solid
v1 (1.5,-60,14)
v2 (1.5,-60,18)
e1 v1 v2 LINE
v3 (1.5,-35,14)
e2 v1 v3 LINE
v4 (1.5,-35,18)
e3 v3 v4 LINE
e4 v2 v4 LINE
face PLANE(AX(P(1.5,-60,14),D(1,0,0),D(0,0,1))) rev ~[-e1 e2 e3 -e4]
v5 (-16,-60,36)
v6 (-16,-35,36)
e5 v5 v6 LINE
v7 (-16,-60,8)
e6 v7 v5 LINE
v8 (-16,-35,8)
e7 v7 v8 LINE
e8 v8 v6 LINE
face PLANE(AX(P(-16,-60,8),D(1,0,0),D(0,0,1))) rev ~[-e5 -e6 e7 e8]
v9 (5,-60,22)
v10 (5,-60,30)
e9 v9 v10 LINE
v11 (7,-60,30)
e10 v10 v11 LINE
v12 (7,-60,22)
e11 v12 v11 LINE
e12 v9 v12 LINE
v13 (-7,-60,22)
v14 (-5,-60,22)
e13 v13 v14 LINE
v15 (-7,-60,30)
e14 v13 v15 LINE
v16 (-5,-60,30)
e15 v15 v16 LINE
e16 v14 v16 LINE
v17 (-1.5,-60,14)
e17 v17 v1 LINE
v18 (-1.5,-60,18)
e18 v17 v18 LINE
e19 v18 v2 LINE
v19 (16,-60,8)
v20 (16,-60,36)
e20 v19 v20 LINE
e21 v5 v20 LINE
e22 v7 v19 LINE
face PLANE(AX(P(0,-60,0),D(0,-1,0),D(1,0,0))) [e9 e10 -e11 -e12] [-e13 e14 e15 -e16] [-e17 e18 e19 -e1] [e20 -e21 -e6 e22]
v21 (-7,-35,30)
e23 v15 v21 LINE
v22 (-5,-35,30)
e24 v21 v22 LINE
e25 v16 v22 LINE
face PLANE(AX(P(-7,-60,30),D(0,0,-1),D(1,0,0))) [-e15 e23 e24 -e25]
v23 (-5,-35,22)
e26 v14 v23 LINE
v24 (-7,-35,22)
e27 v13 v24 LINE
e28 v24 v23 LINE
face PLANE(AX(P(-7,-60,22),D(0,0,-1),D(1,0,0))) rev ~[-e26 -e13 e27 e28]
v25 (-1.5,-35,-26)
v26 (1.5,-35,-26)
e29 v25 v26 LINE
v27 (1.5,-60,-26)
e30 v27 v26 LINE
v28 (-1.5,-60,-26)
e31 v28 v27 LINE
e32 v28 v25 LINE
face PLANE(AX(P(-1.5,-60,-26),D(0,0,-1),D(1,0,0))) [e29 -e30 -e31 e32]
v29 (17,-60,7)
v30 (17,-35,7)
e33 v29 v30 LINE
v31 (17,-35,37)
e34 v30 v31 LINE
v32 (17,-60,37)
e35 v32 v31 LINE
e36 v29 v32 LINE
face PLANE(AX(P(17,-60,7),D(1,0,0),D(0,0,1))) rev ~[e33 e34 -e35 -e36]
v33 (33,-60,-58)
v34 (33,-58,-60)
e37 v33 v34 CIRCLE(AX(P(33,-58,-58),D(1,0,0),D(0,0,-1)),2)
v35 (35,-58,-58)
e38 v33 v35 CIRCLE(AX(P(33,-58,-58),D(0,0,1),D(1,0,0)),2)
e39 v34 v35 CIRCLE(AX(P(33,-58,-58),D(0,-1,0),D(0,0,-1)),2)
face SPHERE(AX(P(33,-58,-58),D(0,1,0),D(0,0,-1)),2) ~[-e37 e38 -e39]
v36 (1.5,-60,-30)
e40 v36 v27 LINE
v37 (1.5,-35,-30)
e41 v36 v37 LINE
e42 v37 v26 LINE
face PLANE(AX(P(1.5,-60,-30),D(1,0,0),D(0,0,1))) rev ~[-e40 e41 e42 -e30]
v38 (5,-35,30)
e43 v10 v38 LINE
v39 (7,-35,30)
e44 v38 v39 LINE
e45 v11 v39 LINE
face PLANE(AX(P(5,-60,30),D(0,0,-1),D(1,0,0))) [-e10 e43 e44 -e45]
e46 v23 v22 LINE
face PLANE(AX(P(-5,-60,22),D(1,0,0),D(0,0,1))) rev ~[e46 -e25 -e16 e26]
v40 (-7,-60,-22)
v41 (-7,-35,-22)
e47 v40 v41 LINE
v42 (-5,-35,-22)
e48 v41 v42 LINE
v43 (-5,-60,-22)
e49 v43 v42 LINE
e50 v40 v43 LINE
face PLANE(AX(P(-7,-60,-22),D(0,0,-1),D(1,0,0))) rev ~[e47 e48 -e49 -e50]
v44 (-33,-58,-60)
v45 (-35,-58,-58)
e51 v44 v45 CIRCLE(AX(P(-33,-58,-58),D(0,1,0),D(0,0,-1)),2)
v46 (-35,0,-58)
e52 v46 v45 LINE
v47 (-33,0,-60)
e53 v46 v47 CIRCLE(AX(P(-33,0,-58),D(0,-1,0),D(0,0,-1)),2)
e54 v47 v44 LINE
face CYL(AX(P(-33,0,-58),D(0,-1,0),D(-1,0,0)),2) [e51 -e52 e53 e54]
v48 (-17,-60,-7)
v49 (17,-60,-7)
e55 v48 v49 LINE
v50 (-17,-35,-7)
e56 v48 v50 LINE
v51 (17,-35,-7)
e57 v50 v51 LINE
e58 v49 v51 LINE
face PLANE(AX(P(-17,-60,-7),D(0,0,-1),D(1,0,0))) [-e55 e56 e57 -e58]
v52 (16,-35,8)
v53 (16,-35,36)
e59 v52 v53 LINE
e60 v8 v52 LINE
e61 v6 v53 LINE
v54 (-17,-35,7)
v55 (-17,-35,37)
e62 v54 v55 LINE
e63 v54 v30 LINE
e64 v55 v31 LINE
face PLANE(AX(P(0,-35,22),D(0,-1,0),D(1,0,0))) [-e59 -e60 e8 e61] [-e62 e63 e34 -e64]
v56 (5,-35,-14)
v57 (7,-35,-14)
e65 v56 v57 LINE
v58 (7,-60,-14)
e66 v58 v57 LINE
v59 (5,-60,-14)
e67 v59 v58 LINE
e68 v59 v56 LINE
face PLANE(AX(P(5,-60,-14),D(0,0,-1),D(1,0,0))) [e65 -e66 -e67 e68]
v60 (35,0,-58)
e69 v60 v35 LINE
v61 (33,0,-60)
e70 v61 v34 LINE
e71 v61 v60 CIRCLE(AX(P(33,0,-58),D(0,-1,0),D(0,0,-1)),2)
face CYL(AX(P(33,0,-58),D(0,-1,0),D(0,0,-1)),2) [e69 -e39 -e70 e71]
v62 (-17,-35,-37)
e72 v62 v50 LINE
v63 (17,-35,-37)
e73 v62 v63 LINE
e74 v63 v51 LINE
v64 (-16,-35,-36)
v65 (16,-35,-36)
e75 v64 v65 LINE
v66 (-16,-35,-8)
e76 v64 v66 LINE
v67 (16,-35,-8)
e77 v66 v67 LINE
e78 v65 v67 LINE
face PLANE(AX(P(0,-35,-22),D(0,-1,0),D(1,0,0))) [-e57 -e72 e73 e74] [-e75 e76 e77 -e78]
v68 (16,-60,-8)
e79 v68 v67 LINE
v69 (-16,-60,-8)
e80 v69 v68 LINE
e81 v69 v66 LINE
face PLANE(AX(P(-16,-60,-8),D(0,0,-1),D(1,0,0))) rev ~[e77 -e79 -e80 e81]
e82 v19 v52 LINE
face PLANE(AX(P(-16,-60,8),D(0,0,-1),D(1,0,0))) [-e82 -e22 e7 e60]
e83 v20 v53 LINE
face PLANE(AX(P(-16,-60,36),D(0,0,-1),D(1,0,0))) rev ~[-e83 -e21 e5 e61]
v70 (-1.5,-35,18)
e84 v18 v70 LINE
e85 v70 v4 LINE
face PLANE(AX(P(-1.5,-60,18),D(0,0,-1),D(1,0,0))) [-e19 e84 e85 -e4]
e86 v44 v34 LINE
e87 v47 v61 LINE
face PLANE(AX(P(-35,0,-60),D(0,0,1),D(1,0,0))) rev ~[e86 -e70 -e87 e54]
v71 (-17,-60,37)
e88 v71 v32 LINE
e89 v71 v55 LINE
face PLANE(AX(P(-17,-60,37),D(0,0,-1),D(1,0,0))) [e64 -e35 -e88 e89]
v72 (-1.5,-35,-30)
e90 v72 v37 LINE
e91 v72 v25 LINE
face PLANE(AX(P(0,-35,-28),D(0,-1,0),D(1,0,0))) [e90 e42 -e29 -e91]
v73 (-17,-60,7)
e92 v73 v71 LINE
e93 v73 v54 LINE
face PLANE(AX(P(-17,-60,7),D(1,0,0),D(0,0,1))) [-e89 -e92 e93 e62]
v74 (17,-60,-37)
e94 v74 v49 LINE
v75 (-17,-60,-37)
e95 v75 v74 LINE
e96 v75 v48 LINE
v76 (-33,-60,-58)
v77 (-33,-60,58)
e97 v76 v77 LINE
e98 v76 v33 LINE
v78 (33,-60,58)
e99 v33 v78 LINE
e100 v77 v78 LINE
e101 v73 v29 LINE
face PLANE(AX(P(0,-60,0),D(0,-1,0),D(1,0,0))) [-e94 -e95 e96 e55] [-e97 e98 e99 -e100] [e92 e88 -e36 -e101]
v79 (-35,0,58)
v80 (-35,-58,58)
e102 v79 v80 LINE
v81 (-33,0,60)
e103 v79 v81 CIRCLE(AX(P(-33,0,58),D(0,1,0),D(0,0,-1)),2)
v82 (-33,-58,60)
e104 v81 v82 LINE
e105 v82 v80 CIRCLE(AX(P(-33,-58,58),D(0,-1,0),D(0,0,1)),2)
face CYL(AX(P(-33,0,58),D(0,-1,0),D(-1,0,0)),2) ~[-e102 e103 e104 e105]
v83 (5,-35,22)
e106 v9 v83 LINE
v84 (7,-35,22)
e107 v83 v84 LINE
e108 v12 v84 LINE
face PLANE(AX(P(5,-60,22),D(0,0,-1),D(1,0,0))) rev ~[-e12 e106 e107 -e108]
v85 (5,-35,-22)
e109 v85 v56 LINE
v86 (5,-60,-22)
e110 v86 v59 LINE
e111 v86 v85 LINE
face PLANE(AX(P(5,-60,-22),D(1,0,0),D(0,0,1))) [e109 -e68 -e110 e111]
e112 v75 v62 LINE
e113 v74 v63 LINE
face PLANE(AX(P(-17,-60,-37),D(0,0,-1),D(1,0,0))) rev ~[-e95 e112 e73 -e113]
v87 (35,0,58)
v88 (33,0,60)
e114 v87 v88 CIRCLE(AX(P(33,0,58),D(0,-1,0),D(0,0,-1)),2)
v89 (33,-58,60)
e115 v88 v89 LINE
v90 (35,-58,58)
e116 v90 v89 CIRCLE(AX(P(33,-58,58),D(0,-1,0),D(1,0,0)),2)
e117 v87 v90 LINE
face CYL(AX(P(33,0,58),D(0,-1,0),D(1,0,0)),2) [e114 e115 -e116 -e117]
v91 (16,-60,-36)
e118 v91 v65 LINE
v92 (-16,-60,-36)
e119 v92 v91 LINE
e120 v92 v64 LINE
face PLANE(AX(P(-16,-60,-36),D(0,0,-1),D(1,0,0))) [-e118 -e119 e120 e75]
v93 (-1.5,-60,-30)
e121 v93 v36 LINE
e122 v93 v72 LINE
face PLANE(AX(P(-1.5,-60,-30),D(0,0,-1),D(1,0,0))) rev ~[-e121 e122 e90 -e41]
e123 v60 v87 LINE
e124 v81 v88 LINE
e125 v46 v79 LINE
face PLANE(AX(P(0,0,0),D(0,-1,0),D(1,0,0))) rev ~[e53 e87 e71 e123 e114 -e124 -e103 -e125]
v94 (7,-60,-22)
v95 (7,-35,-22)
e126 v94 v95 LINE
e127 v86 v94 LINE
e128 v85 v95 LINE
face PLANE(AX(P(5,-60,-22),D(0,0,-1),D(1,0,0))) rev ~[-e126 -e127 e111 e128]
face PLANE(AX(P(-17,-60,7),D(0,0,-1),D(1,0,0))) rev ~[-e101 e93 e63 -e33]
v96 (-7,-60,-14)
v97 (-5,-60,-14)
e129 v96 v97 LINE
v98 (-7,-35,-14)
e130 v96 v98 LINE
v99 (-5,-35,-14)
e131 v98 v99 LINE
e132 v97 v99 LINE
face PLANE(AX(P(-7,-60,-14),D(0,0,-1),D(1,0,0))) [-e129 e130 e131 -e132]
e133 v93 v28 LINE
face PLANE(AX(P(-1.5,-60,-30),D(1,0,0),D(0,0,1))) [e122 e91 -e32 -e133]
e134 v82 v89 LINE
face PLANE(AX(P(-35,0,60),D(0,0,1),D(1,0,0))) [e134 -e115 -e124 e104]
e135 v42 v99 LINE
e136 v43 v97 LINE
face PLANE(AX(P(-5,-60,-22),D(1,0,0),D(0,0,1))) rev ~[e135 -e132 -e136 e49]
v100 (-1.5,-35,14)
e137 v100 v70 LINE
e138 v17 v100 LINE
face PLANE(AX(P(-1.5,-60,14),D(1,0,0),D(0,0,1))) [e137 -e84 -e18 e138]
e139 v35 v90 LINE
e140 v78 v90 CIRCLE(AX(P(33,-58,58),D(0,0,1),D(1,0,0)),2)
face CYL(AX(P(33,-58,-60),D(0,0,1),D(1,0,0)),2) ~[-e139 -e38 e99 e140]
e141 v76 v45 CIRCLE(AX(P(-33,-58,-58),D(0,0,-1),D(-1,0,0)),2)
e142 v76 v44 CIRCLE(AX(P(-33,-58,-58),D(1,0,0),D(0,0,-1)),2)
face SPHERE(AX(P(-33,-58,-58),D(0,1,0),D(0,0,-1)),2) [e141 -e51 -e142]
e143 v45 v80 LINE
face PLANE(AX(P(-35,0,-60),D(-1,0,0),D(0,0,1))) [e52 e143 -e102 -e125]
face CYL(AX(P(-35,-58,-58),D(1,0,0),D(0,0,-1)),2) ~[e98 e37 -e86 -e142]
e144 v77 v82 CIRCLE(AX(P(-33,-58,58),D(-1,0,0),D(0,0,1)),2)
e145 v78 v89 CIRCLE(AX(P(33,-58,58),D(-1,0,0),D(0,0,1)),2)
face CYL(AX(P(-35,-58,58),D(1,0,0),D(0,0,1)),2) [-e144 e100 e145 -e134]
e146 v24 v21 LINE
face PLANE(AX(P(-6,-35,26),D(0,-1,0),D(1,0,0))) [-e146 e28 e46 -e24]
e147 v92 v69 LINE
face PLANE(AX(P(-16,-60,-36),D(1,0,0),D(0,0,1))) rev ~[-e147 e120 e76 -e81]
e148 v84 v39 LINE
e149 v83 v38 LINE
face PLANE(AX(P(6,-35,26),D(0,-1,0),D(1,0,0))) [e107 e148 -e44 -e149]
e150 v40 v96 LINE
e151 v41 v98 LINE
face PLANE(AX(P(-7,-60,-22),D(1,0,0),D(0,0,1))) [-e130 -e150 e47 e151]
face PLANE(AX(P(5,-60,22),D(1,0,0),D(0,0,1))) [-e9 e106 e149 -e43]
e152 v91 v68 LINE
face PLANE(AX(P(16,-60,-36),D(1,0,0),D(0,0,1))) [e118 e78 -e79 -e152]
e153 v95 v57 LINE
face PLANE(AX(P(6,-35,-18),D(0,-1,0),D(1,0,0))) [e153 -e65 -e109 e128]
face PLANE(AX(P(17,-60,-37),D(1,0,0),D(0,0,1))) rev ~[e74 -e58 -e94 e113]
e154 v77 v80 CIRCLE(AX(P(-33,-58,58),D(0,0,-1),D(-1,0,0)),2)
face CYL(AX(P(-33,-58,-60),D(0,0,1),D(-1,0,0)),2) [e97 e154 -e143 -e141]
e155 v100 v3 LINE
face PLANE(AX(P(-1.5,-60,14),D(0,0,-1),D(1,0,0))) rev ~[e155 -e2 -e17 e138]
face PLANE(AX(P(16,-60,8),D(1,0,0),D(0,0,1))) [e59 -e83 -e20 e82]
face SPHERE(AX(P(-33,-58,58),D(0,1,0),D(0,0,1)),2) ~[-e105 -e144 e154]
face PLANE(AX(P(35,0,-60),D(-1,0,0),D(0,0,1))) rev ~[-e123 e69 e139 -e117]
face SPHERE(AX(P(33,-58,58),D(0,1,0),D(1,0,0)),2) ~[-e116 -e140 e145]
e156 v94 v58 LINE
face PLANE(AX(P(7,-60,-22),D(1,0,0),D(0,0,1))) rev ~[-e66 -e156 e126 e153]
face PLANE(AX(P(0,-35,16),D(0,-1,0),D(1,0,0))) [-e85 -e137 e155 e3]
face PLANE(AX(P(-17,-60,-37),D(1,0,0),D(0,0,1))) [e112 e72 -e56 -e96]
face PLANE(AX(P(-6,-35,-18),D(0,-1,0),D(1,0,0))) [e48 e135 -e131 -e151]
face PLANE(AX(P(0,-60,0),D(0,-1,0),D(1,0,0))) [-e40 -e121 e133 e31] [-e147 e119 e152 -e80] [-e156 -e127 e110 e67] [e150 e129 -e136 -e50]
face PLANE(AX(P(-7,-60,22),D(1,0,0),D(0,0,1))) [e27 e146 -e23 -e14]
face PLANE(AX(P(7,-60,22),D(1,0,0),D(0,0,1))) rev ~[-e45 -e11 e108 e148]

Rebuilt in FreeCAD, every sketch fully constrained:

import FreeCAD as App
import Part
import Sketcher
Q = App.Units.Quantity


def edges_at(feature, points):
    """Names of the edges that pass closest to the given points."""
    edges = feature.Shape.Edges
    near = lambda p: min(range(len(edges)), key=lambda i: edges[i].distToShape(Part.Vertex(*p))[0])
    return sorted({f"Edge{near(p) + 1}" for p in points})

doc = App.newDocument("Part")
params = doc.addObject("Spreadsheet::Sheet", "Params")
for row, (alias, value) in enumerate([
    ("sketch1_width", "70 mm"),
    ("sketch1_height", "120 mm"),
    ("pad1_length", "60 mm"),
    ("fillet_radius", "2 mm"),
    ("sketch2_width", "34 mm"),
    ("sketch2_width2", "32 mm"),
    ("sketch2_height", "30 mm"),
    ("sketch2_height2", "28 mm"),
    ("pocket1_length", "25 mm"),
    ("sketch3_width", "3 mm"),
    ("sketch3_width2", "2 mm"),
    ("sketch3_height", "4 mm"),
    ("sketch3_height2", "8 mm"),
    ("pocket2_length", "25 mm"),
], start=1):
    params.set(f"A{row}", alias)
    params.set(f"B{row}", "=" + value)
    params.setAlias(f"B{row}", alias)

body = doc.addObject("PartDesign::Body", "Body")

# Sketch on XZ plane
sketch1 = body.newObject("Sketcher::SketchObject", "Sketch")
sketch1.AttachmentSupport = (doc.getObject("XZ_Plane"), [""])
sketch1.MapMode = "FlatFace"
sketch1.addGeometry([
    Part.LineSegment(App.Vector(-35, 60, 0), App.Vector(-35, -60, 0)),
    Part.LineSegment(App.Vector(-35, -60, 0), App.Vector(35, -60, 0)),
    Part.LineSegment(App.Vector(35, -60, 0), App.Vector(35, 60, 0)),
    Part.LineSegment(App.Vector(35, 60, 0), App.Vector(-35, 60, 0)),
], False)
sketch1.addConstraint([
    Sketcher.Constraint("Coincident", 0, 2, 1, 1),
    Sketcher.Constraint("Coincident", 1, 2, 2, 1),
    Sketcher.Constraint("Coincident", 2, 2, 3, 1),
    Sketcher.Constraint("Coincident", 3, 2, 0, 1),
    Sketcher.Constraint("Vertical", 0),
    Sketcher.Constraint("Horizontal", 1),
    Sketcher.Constraint("Vertical", 2),
    Sketcher.Constraint("Horizontal", 3),
    Sketcher.Constraint("Symmetric", 0, 2, 2, 2, -1, 1),
    Sketcher.Constraint("DistanceX", 1, 1, 1, 2, Q("70 mm")),
    Sketcher.Constraint("DistanceY", 0, 2, 0, 1, Q("120 mm")),
])
sketch1.setExpression("Constraints[9]", "Params.sketch1_width")
sketch1.setExpression("Constraints[10]", "Params.sketch1_height")
pad1 = body.newObject("PartDesign::Pad", "Pad")
pad1.Profile = sketch1
pad1.setExpression("Length", "Params.pad1_length")
doc.recompute()

fillet = body.newObject("PartDesign::Fillet", "Fillet")
fillet.Base = (pad1, edges_at(pad1, [
    (35, -30, 60),
    (35, -30, -60),
    (-35, -30, 60),
    (-35, -30, -60),
    (0, -60, -60),
    (35, -60, 0),
    (0, -60, 60),
    (-35, -60, 0),
]))
fillet.setExpression("Radius", "Params.fillet_radius")

# Sketch on XZ plane
sketch2 = body.newObject("Sketcher::SketchObject", "Sketch001")
sketch2.AttachmentSupport = (doc.getObject("XZ_Plane"), [""])
sketch2.MapMode = "FlatFace"
sketch2.AttachmentOffset = App.Placement(App.Vector(0, 0, 60), App.Rotation())
sketch2.addGeometry([
    Part.LineSegment(App.Vector(-17, 37, 0), App.Vector(-17, 7, 0)),  # 0
    Part.LineSegment(App.Vector(-17, 7, 0), App.Vector(17, 7, 0)),  # 1
    Part.LineSegment(App.Vector(17, 7, 0), App.Vector(17, 37, 0)),  # 2
    Part.LineSegment(App.Vector(17, 37, 0), App.Vector(-17, 37, 0)),  # 3
    Part.LineSegment(App.Vector(16, 8, 0), App.Vector(-16, 8, 0)),  # 4
    Part.LineSegment(App.Vector(-16, 8, 0), App.Vector(-16, 36, 0)),  # 5
    Part.LineSegment(App.Vector(-16, 36, 0), App.Vector(16, 36, 0)),  # 6
    Part.LineSegment(App.Vector(16, 36, 0), App.Vector(16, 8, 0)),  # 7
    Part.LineSegment(App.Vector(-17, -7, 0), App.Vector(-17, -37, 0)),  # 8
    Part.LineSegment(App.Vector(-17, -37, 0), App.Vector(17, -37, 0)),  # 9
    Part.LineSegment(App.Vector(17, -37, 0), App.Vector(17, -7, 0)),  # 10
    Part.LineSegment(App.Vector(17, -7, 0), App.Vector(-17, -7, 0)),  # 11
    Part.LineSegment(App.Vector(16, -36, 0), App.Vector(-16, -36, 0)),  # 12
    Part.LineSegment(App.Vector(-16, -36, 0), App.Vector(-16, -8, 0)),  # 13
    Part.LineSegment(App.Vector(-16, -8, 0), App.Vector(16, -8, 0)),  # 14
    Part.LineSegment(App.Vector(16, -8, 0), App.Vector(16, -36, 0)),  # 15
], False)
sketch2.addConstraint([
    Sketcher.Constraint("Coincident", 0, 2, 1, 1),
    Sketcher.Constraint("Coincident", 1, 2, 2, 1),
    Sketcher.Constraint("Coincident", 2, 2, 3, 1),
    Sketcher.Constraint("Coincident", 3, 2, 0, 1),
    Sketcher.Constraint("Coincident", 4, 2, 5, 1),
    Sketcher.Constraint("Coincident", 5, 2, 6, 1),
    Sketcher.Constraint("Coincident", 6, 2, 7, 1),
    Sketcher.Constraint("Coincident", 7, 2, 4, 1),
    Sketcher.Constraint("Coincident", 8, 2, 9, 1),
    Sketcher.Constraint("Coincident", 9, 2, 10, 1),
    Sketcher.Constraint("Coincident", 10, 2, 11, 1),
    Sketcher.Constraint("Coincident", 11, 2, 8, 1),
    Sketcher.Constraint("Coincident", 12, 2, 13, 1),
    Sketcher.Constraint("Coincident", 13, 2, 14, 1),
    Sketcher.Constraint("Coincident", 14, 2, 15, 1),
    Sketcher.Constraint("Coincident", 15, 2, 12, 1),
    Sketcher.Constraint("Vertical", 0),
    Sketcher.Constraint("Horizontal", 1),
    Sketcher.Constraint("Vertical", 2),
    Sketcher.Constraint("Horizontal", 3),
    Sketcher.Constraint("Horizontal", 4),
    Sketcher.Constraint("Vertical", 5),
    Sketcher.Constraint("Horizontal", 6),
    Sketcher.Constraint("Vertical", 7),
    Sketcher.Constraint("Vertical", 8),
    Sketcher.Constraint("Horizontal", 9),
    Sketcher.Constraint("Vertical", 10),
    Sketcher.Constraint("Horizontal", 11),
    Sketcher.Constraint("Horizontal", 12),
    Sketcher.Constraint("Vertical", 13),
    Sketcher.Constraint("Horizontal", 14),
    Sketcher.Constraint("Vertical", 15),
    Sketcher.Constraint("Symmetric", 2, 2, 8, 2, -1, 1),
    Sketcher.Constraint("Symmetric", 0, 2, 10, 2, -1, 1),
    Sketcher.Constraint("Symmetric", 6, 2, 12, 2, -1, 1),
    Sketcher.Constraint("Symmetric", 4, 2, 14, 2, -1, 1),
    Sketcher.Constraint("Vertical", 3, 2, 8, 2),
    Sketcher.Constraint("Vertical", 5, 2, 12, 2),
    Sketcher.Constraint("DistanceX", 1, 1, 1, 2, Q("34 mm")),
    Sketcher.Constraint("DistanceX", 4, 2, 4, 1, Q("32 mm")),
    Sketcher.Constraint("DistanceY", 0, 2, 0, 1, Q("30 mm")),
    Sketcher.Constraint("DistanceY", 5, 1, 5, 2, Q("28 mm")),
    Sketcher.Constraint("DistanceY", -1, 1, 0, 2, Q("7 mm")),
    Sketcher.Constraint("DistanceY", -1, 1, 4, 2, Q("8 mm")),
])
sketch2.setExpression("Constraints[38]", "Params.sketch2_width")
sketch2.setExpression("Constraints[39]", "Params.sketch2_width2")
sketch2.setExpression("Constraints[40]", "Params.sketch2_height")
sketch2.setExpression("Constraints[41]", "Params.sketch2_height2")
pocket1 = body.newObject("PartDesign::Pocket", "Pocket")
pocket1.Profile = sketch2
pocket1.setExpression("Length", "Params.pocket1_length")

# Sketch on XZ plane
sketch3 = body.newObject("Sketcher::SketchObject", "Sketch002")
sketch3.AttachmentSupport = (doc.getObject("XZ_Plane"), [""])
sketch3.MapMode = "FlatFace"
sketch3.AttachmentOffset = App.Placement(App.Vector(0, 0, 60), App.Rotation())
sketch3.addGeometry([
    Part.LineSegment(App.Vector(-1.5, 18, 0), App.Vector(-1.5, 14, 0)),  # 0
    Part.LineSegment(App.Vector(-1.5, 14, 0), App.Vector(1.5, 14, 0)),  # 1
    Part.LineSegment(App.Vector(1.5, 14, 0), App.Vector(1.5, 18, 0)),  # 2
    Part.LineSegment(App.Vector(1.5, 18, 0), App.Vector(-1.5, 18, 0)),  # 3
    Part.LineSegment(App.Vector(-1.5, -26, 0), App.Vector(-1.5, -30, 0)),  # 4
    Part.LineSegment(App.Vector(-1.5, -30, 0), App.Vector(1.5, -30, 0)),  # 5
    Part.LineSegment(App.Vector(1.5, -30, 0), App.Vector(1.5, -26, 0)),  # 6
    Part.LineSegment(App.Vector(1.5, -26, 0), App.Vector(-1.5, -26, 0)),  # 7
    Part.LineSegment(App.Vector(-7, -14, 0), App.Vector(-7, -22, 0)),  # 8
    Part.LineSegment(App.Vector(-7, -22, 0), App.Vector(-5, -22, 0)),  # 9
    Part.LineSegment(App.Vector(-5, -22, 0), App.Vector(-5, -14, 0)),  # 10
    Part.LineSegment(App.Vector(-5, -14, 0), App.Vector(-7, -14, 0)),  # 11
    Part.LineSegment(App.Vector(-7, 30, 0), App.Vector(-7, 22, 0)),  # 12
    Part.LineSegment(App.Vector(-7, 22, 0), App.Vector(-5, 22, 0)),  # 13
    Part.LineSegment(App.Vector(-5, 22, 0), App.Vector(-5, 30, 0)),  # 14
    Part.LineSegment(App.Vector(-5, 30, 0), App.Vector(-7, 30, 0)),  # 15
    Part.LineSegment(App.Vector(5, 30, 0), App.Vector(5, 22, 0)),  # 16
    Part.LineSegment(App.Vector(5, 22, 0), App.Vector(7, 22, 0)),  # 17
    Part.LineSegment(App.Vector(7, 22, 0), App.Vector(7, 30, 0)),  # 18
    Part.LineSegment(App.Vector(7, 30, 0), App.Vector(5, 30, 0)),  # 19
    Part.LineSegment(App.Vector(5, -14, 0), App.Vector(5, -22, 0)),  # 20
    Part.LineSegment(App.Vector(5, -22, 0), App.Vector(7, -22, 0)),  # 21
    Part.LineSegment(App.Vector(7, -22, 0), App.Vector(7, -14, 0)),  # 22
    Part.LineSegment(App.Vector(7, -14, 0), App.Vector(5, -14, 0)),  # 23
], False)
sketch3.addConstraint([
    Sketcher.Constraint("Coincident", 0, 2, 1, 1),
    Sketcher.Constraint("Coincident", 1, 2, 2, 1),
    Sketcher.Constraint("Coincident", 2, 2, 3, 1),
    Sketcher.Constraint("Coincident", 3, 2, 0, 1),
    Sketcher.Constraint("Coincident", 4, 2, 5, 1),
    Sketcher.Constraint("Coincident", 5, 2, 6, 1),
    Sketcher.Constraint("Coincident", 6, 2, 7, 1),
    Sketcher.Constraint("Coincident", 7, 2, 4, 1),
    Sketcher.Constraint("Coincident", 8, 2, 9, 1),
    Sketcher.Constraint("Coincident", 9, 2, 10, 1),
    Sketcher.Constraint("Coincident", 10, 2, 11, 1),
    Sketcher.Constraint("Coincident", 11, 2, 8, 1),
    Sketcher.Constraint("Coincident", 12, 2, 13, 1),
    Sketcher.Constraint("Coincident", 13, 2, 14, 1),
    Sketcher.Constraint("Coincident", 14, 2, 15, 1),
    Sketcher.Constraint("Coincident", 15, 2, 12, 1),
    Sketcher.Constraint("Coincident", 16, 2, 17, 1),
    Sketcher.Constraint("Coincident", 17, 2, 18, 1),
    Sketcher.Constraint("Coincident", 18, 2, 19, 1),
    Sketcher.Constraint("Coincident", 19, 2, 16, 1),
    Sketcher.Constraint("Coincident", 20, 2, 21, 1),
    Sketcher.Constraint("Coincident", 21, 2, 22, 1),
    Sketcher.Constraint("Coincident", 22, 2, 23, 1),
    Sketcher.Constraint("Coincident", 23, 2, 20, 1),
    Sketcher.Constraint("Vertical", 0),
    Sketcher.Constraint("Horizontal", 1),
    Sketcher.Constraint("Vertical", 2),
    Sketcher.Constraint("Horizontal", 3),
    Sketcher.Constraint("Vertical", 4),
    Sketcher.Constraint("Horizontal", 5),
    Sketcher.Constraint("Vertical", 6),
    Sketcher.Constraint("Horizontal", 7),
    Sketcher.Constraint("Vertical", 8),
    Sketcher.Constraint("Horizontal", 9),
    Sketcher.Constraint("Vertical", 10),
    Sketcher.Constraint("Horizontal", 11),
    Sketcher.Constraint("Vertical", 12),
    Sketcher.Constraint("Horizontal", 13),
    Sketcher.Constraint("Vertical", 14),
    Sketcher.Constraint("Horizontal", 15),
    Sketcher.Constraint("Vertical", 16),
    Sketcher.Constraint("Horizontal", 17),
    Sketcher.Constraint("Vertical", 18),
    Sketcher.Constraint("Horizontal", 19),
    Sketcher.Constraint("Vertical", 20),
    Sketcher.Constraint("Horizontal", 21),
    Sketcher.Constraint("Vertical", 22),
    Sketcher.Constraint("Horizontal", 23),
    Sketcher.Constraint("Symmetric", 9, 2, 16, 2, -1, 1),
    Sketcher.Constraint("Symmetric", 13, 2, 20, 2, -1, 1),
    Sketcher.Constraint("Symmetric", 13, 2, 16, 2, -2),
    Sketcher.Constraint("Symmetric", 15, 2, 18, 2, -2),
    Sketcher.Constraint("Symmetric", 11, 2, 22, 2, -2),
    Sketcher.Constraint("Vertical", 3, 2, 4, 2),
    Sketcher.Constraint("Vertical", 2, 2, 5, 2),
    Sketcher.Constraint("Vertical", 11, 2, 12, 2),
    Sketcher.Constraint("Equal", 2, 4),
    Sketcher.Constraint("Equal", 10, 12),
    Sketcher.Constraint("DistanceX", 1, 1, 1, 2, Q("3 mm")),
    Sketcher.Constraint("DistanceX", 9, 1, 9, 2, Q("2 mm")),
    Sketcher.Constraint("DistanceY", 0, 2, 0, 1, Q("4 mm")),
    Sketcher.Constraint("DistanceY", 8, 2, 8, 1, Q("8 mm")),
    Sketcher.Constraint("DistanceY", -1, 1, 0, 2, Q("14 mm")),
    Sketcher.Constraint("DistanceY", 4, 2, -1, 1, Q("30 mm")),
    Sketcher.Constraint("DistanceX", 8, 2, -1, 1, Q("7 mm")),
    Sketcher.Constraint("DistanceY", 8, 2, -1, 1, Q("22 mm")),
    Sketcher.Constraint("DistanceX", 0, 2, -1, 1, Q("1.5 mm")),
])
sketch3.setExpression("Constraints[58]", "Params.sketch3_width")
sketch3.setExpression("Constraints[59]", "Params.sketch3_width2")
sketch3.setExpression("Constraints[60]", "Params.sketch3_height")
sketch3.setExpression("Constraints[61]", "Params.sketch3_height2")
pocket2 = body.newObject("PartDesign::Pocket", "Pocket001")
pocket2.Profile = sketch3
pocket2.setExpression("Length", "Params.pocket2_length")

doc.recompute()
